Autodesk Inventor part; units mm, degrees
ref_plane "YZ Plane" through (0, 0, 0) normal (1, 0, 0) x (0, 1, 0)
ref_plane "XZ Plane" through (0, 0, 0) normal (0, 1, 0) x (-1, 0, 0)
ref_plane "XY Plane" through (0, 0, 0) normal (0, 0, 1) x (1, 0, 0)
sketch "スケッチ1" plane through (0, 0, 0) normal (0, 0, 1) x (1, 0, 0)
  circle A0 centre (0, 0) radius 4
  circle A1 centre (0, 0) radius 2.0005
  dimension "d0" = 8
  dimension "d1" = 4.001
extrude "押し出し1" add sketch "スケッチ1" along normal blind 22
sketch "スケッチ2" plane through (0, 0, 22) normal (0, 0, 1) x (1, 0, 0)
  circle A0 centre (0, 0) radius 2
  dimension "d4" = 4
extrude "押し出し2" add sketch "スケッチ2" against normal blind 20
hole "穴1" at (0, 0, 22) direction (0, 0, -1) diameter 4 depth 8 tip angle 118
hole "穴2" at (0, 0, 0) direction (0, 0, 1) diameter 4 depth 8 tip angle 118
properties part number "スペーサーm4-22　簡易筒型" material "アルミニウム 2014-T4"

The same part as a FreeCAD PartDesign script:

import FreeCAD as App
import Part
import Sketcher

doc = App.newDocument("Part")
body = doc.addObject("PartDesign::Body", "Body")
body.AllowCompound = True

sketch1 = doc.addObject("Sketcher::SketchObject", "Sketch")
body.addObject(sketch1)
sketch1.AttachmentSupport = (doc.XY_Plane, [""])
sketch1.MapMode = "FlatFace"
sketch1.addGeometry(Part.Circle(App.Vector(0, 0, 0), App.Vector(0, 0, 1), 4), False)
sketch1.addGeometry(Part.Circle(App.Vector(0, 0, 0), App.Vector(0, 0, 1), 2), False)
sketch1.addConstraint(Sketcher.Constraint("Coincident", 0, 3, -1, 1))
sketch1.addConstraint(Sketcher.Constraint("Coincident", 1, 3, -1, 1))
sketch1.addConstraint(Sketcher.Constraint("Diameter", 0, 8.0))
sketch1.addConstraint(Sketcher.Constraint("Diameter", 1, 4.001))
pad1 = doc.addObject("PartDesign::Pad", "Pad")
body.addObject(pad1)
pad1.Profile = sketch1
pad1.Length = 22

sketch2 = doc.addObject("Sketcher::SketchObject", "Sketch001")
body.addObject(sketch2)
sketch2.AttachmentSupport = (doc.XY_Plane, [""])
sketch2.MapMode = "FlatFace"
sketch2.AttachmentOffset = App.Placement(App.Vector(0, 0, 22), App.Rotation())
sketch2.addGeometry(Part.Circle(App.Vector(0, 0, 0), App.Vector(0, 0, 1), 2), False)
sketch2.addConstraint(Sketcher.Constraint("Coincident", 0, 3, -1, 1))
sketch2.addConstraint(Sketcher.Constraint("Diameter", 0, 4.0))
pad2 = doc.addObject("PartDesign::Pad", "Pad001")
body.addObject(pad2)
pad2.Profile = sketch2
pad2.Length = 20
pad2.Reversed = True

sketch3 = doc.addObject("Sketcher::SketchObject", "Sketch002")
body.addObject(sketch3)
sketch3.AttachmentSupport = (doc.XY_Plane, [""])
sketch3.MapMode = "FlatFace"
sketch3.AttachmentOffset = App.Placement(App.Vector(0, 0, 22), App.Rotation())
sketch3.addGeometry(Part.Circle(App.Vector(0, 0, 0), App.Vector(0, 0, 1), 2), False)
sketch3.addConstraint(Sketcher.Constraint("Coincident", 0, 3, -1, 1))
sketch3.addConstraint(Sketcher.Constraint("Diameter", 0, 4.0))
doc.recompute()
hole = doc.addObject("PartDesign::Hole", "Hole")
body.addObject(hole)
hole.Profile = sketch3
hole.ThreadType = "None"
hole.Diameter = 4
hole.DepthType = "Dimension"
hole.Depth = 8
hole.DrillPoint = "Angled"
hole.DrillPointAngle = 118

sketch4 = doc.addObject("Sketcher::SketchObject", "Sketch003")
body.addObject(sketch4)
sketch4.AttachmentSupport = (doc.XY_Plane, [""])
sketch4.MapMode = "FlatFace"
sketch4.addGeometry(Part.Circle(App.Vector(0, 0, 0), App.Vector(0, 0, 1), 2), False)
sketch4.addConstraint(Sketcher.Constraint("Coincident", 0, 3, -1, 1))
sketch4.addConstraint(Sketcher.Constraint("Diameter", 0, 4.0))
doc.recompute()
hole2 = doc.addObject("PartDesign::Hole", "Hole001")
body.addObject(hole2)
hole2.Profile = sketch4
hole2.ThreadType = "None"
hole2.Diameter = 4
hole2.DepthType = "Dimension"
hole2.Depth = 8
hole2.DrillPoint = "Angled"
hole2.DrillPointAngle = 118
hole2.Reversed = True

doc.recompute()
